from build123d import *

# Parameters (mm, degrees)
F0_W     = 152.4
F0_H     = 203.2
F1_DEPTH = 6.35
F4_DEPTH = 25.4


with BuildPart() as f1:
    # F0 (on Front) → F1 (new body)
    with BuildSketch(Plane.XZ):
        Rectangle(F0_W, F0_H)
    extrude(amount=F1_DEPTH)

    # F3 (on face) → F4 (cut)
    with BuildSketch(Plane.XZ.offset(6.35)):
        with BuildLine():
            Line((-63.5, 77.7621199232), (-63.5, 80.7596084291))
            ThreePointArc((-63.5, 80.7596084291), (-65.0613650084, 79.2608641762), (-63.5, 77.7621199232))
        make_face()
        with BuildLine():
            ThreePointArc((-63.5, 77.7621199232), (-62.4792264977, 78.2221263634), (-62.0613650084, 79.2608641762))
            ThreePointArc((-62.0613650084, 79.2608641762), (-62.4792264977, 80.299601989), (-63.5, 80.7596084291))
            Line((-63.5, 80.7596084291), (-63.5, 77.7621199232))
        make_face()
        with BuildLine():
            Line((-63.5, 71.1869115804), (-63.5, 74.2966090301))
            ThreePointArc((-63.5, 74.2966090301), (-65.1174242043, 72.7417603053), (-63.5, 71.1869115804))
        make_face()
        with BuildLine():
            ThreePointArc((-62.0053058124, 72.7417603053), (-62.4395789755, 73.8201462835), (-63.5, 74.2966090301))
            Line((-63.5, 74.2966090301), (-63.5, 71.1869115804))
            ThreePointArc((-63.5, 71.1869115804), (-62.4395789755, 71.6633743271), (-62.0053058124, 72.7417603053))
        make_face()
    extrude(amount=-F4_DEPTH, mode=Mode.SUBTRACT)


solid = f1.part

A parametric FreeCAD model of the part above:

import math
import FreeCAD as App
import Part
import Sketcher

V = App.Vector
Q = App.Units.Quantity


def add_polygon(sketch, points):
    """Adds a closed chain of lines whose ends are joined by coincident constraints."""
    first, n = sketch.GeometryCount, len(points)
    for a, b in zip(points, points[1:] + points[:1]):
        sketch.addGeometry(Part.LineSegment(App.Vector(*a, 0), App.Vector(*b, 0)), False)
    for i in range(n):
        sketch.addConstraint(Sketcher.Constraint("Coincident", first + i, 2, first + (i + 1) % n, 1))

doc = App.newDocument("Part")
body = doc.addObject("PartDesign::Body", "Body")

sketch1 = body.newObject("Sketcher::SketchObject", "Sketch")
sketch1.AttachmentSupport = (doc.getObject("XZ_Plane"), [""])
sketch1.MapMode = "FlatFace"
add_polygon(sketch1, [(-76, 102), (-76, -102), (76, -102), (76, 102)])
sketch1.addConstraint([
    Sketcher.Constraint("Vertical", 0),
    Sketcher.Constraint("Horizontal", 1),
    Sketcher.Constraint("Vertical", 2),
    Sketcher.Constraint("Horizontal", 3),
    Sketcher.Constraint("Symmetric", 0, 2, 2, 2, -1, 1),
    Sketcher.Constraint("DistanceX", 1, 1, 1, 2, Q("6 in")),
    Sketcher.Constraint("DistanceY", 0, 2, 0, 1, Q("8 in")),
])
pad1 = body.newObject("PartDesign::Pad", "Pad")
pad1.Profile = sketch1
pad1.Length = Q("0.25 in")

sketch2 = body.newObject("Sketcher::SketchObject", "Sketch001")
sketch2.AttachmentSupport = (doc.getObject("XZ_Plane"), [""])
sketch2.MapMode = "FlatFace"
sketch2.AttachmentOffset = App.Placement(V(0, 0, 0.25 * 25.4), App.Rotation())
sketch2.addGeometry([
    Part.ArcOfCircle(Part.Circle(V(-63.6, 79.3, 0), V(0, 0, 1), 1.5), math.radians(88), math.radians(272)),
    Part.ArcOfCircle(Part.Circle(V(-63.6, 79.3, 0), V(0, 0, 1), 1.5), math.radians(-88), math.radians(0)),
    Part.ArcOfCircle(Part.Circle(V(-63.6, 79.3, 0), V(0, 0, 1), 1.5), math.radians(0), math.radians(88)),
    Part.ArcOfCircle(Part.Circle(V(-63.6, 72.7, 0), V(0, 0, 1), 1.6), math.radians(88), math.radians(272)),
    Part.ArcOfCircle(Part.Circle(V(-63.6, 72.7, 0), V(0, 0, 1), 1.6), math.radians(-88), math.radians(0)),
    Part.ArcOfCircle(Part.Circle(V(-63.6, 72.7, 0), V(0, 0, 1), 1.6), math.radians(0), math.radians(88)),
], False)
sketch2.addConstraint([
    Sketcher.Constraint("Tangent", 0, 2, 1, 1),
    Sketcher.Constraint("Tangent", 1, 2, 2, 1),
    Sketcher.Constraint("Tangent", 2, 2, 0, 1),
    Sketcher.Constraint("Tangent", 3, 2, 4, 1),
    Sketcher.Constraint("Tangent", 4, 2, 5, 1),
    Sketcher.Constraint("Tangent", 5, 2, 3, 1),
    Sketcher.Constraint("Horizontal", 2, 3, 1, 2),
    Sketcher.Constraint("Horizontal", 5, 3, 4, 2),
    Sketcher.Constraint("Vertical", 2, 3, 3, 3),
    Sketcher.Constraint("Vertical", 0, 2, 2, 2),
    Sketcher.Constraint("Vertical", 2, 2, 3, 2),
    Sketcher.Constraint("Vertical", 3, 2, 5, 2),
    Sketcher.Constraint("DistanceX", 0, 2, -1, 1, Q("2.5 in")),
    Sketcher.Constraint("Radius", 0, 1.5),
    Sketcher.Constraint("Radius", 3, 1.556059),
    Sketcher.Constraint("DistanceY", -1, 1, 3, 3, 72.74176),
    Sketcher.Constraint("DistanceY", -1, 1, 0, 2, 77.76212),
    Sketcher.Constraint("DistanceY", -1, 1, 2, 2, 80.759608),
])
pocket1 = body.newObject("PartDesign::Pocket", "Pocket")
pocket1.Profile = sketch2
pocket1.Length = Q("1 in")

doc.recompute()
